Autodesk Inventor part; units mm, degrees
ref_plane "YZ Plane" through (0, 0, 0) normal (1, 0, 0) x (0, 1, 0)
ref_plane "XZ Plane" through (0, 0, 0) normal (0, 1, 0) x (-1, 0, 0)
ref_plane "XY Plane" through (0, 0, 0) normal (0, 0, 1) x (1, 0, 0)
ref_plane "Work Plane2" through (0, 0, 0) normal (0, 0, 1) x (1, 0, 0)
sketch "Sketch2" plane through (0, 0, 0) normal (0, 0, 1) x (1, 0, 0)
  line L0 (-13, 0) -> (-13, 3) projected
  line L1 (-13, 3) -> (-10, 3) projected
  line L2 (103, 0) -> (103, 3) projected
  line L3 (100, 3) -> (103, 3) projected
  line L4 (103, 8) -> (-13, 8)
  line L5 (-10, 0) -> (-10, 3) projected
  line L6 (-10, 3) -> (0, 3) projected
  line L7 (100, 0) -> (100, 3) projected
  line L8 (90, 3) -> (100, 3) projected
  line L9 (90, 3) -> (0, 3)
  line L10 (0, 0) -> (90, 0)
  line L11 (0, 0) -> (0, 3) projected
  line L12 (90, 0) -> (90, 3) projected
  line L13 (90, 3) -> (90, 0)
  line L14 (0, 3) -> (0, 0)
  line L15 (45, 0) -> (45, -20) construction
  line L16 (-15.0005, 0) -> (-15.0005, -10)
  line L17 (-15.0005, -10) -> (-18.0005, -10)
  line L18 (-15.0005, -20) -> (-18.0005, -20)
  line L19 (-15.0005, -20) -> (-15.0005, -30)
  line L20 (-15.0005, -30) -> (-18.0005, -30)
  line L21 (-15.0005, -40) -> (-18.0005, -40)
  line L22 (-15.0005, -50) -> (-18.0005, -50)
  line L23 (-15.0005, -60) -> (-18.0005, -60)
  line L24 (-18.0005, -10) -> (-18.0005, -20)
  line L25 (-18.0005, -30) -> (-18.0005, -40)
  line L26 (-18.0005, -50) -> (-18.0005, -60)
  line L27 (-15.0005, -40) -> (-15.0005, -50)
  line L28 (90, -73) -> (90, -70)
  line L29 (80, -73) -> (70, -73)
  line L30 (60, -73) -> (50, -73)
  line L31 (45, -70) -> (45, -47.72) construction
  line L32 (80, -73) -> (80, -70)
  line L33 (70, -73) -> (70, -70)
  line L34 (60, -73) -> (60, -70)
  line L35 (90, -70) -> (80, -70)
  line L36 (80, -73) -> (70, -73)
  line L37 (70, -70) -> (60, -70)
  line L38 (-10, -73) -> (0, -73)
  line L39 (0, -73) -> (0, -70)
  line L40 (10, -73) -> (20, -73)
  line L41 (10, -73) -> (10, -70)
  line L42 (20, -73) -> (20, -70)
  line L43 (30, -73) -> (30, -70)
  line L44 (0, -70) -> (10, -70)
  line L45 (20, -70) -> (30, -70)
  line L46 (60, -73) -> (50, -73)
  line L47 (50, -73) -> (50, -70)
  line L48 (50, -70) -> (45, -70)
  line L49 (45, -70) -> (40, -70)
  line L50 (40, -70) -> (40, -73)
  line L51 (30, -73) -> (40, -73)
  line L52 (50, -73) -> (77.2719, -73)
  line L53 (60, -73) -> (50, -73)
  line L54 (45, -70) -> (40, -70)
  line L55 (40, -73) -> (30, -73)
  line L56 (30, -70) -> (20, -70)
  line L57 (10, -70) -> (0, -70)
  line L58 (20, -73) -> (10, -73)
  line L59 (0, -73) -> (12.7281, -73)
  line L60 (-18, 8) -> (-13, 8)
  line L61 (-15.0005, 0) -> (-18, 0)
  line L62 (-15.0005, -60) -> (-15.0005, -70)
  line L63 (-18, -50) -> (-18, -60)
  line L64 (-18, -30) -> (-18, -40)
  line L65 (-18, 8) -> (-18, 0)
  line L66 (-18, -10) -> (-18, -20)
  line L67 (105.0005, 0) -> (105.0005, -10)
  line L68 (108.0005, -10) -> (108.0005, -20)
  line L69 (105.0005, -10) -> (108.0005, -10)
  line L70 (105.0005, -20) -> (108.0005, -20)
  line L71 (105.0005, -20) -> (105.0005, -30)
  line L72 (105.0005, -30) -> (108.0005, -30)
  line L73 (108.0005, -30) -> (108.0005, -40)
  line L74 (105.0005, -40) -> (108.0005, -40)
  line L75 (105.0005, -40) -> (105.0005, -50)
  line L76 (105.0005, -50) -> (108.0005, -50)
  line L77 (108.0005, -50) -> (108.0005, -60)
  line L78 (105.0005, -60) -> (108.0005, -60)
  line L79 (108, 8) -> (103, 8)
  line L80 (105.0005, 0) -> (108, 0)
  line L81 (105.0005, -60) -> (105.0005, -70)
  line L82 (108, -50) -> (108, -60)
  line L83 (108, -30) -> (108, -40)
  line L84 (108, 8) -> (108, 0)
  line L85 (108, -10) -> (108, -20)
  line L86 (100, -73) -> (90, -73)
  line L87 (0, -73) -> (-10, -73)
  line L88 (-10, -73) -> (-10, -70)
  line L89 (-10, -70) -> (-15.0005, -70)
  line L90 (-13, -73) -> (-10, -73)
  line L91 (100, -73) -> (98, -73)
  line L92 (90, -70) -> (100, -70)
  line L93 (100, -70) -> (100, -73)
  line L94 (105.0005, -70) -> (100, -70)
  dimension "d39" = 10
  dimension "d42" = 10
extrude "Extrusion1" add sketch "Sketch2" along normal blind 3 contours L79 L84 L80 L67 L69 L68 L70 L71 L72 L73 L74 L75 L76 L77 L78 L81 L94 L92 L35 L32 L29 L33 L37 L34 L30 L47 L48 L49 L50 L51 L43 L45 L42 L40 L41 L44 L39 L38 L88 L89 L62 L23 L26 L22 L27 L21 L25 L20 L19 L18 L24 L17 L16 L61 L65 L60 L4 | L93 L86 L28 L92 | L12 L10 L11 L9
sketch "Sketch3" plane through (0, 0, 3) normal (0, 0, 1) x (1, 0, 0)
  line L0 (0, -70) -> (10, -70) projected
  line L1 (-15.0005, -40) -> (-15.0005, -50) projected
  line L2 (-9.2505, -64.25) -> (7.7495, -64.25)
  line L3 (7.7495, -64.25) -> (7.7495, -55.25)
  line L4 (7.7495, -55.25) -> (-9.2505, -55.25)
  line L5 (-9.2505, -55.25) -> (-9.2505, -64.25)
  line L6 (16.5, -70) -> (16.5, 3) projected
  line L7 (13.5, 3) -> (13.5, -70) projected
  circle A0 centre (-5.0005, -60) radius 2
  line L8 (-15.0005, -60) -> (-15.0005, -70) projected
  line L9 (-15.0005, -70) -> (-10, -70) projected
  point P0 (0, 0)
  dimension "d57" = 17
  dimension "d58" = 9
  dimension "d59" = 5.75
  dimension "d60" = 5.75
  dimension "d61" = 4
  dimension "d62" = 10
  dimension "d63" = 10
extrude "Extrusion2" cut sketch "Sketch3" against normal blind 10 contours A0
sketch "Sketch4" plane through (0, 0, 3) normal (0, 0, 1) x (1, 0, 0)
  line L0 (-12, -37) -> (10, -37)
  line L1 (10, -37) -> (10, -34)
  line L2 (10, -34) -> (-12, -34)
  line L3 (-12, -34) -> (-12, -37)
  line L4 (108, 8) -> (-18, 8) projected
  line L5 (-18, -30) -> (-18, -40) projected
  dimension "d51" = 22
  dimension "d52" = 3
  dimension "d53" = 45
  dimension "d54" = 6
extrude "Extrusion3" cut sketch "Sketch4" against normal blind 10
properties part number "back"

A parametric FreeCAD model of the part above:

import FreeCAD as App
import Part
import Sketcher
from FreeCAD import Vector
Q = App.Units.Quantity

doc = App.newDocument("Part")
body = doc.addObject("PartDesign::Body", "Body")

sketch1 = body.newObject("Sketcher::SketchObject", "Sketch")
sketch1.AttachmentSupport = (doc.getObject("XY_Plane"), [""])
sketch1.MapMode = "FlatFace"
sketch1.addGeometry(Part.LineSegment(Vector(108, 8, 0), Vector(-18, 8, 0)), False)
sketch1.addGeometry(Part.LineSegment(Vector(-18, 8, 0), Vector(-18, 0, 0)), False)
sketch1.addGeometry(Part.LineSegment(Vector(-18, 0, 0), Vector(-15, 0, 0)), False)
sketch1.addGeometry(Part.LineSegment(Vector(-15, 0, 0), Vector(-15, -10, 0)), False)
sketch1.addGeometry(Part.LineSegment(Vector(-15, -10, 0), Vector(-18, -10, 0)), False)
sketch1.addGeometry(Part.LineSegment(Vector(-18, -10, 0), Vector(-18, -20, 0)), False)
sketch1.addGeometry(Part.LineSegment(Vector(-18, -20, 0), Vector(-15, -20, 0)), False)
sketch1.addGeometry(Part.LineSegment(Vector(-15, -20, 0), Vector(-15, -30, 0)), False)
sketch1.addGeometry(Part.LineSegment(Vector(-15, -30, 0), Vector(-18, -30, 0)), False)
sketch1.addGeometry(Part.LineSegment(Vector(-18, -30, 0), Vector(-18, -40, 0)), False)
sketch1.addGeometry(Part.LineSegment(Vector(-18, -40, 0), Vector(-15, -40, 0)), False)
sketch1.addGeometry(Part.LineSegment(Vector(-15, -40, 0), Vector(-15, -50, 0)), False)
sketch1.addGeometry(Part.LineSegment(Vector(-15, -50, 0), Vector(-18, -50, 0)), False)
sketch1.addGeometry(Part.LineSegment(Vector(-18, -50, 0), Vector(-18, -60, 0)), False)
sketch1.addGeometry(Part.LineSegment(Vector(-18, -60, 0), Vector(-15, -60, 0)), False)
sketch1.addGeometry(Part.LineSegment(Vector(-15, -60, 0), Vector(-15, -70, 0)), False)
sketch1.addGeometry(Part.LineSegment(Vector(-15, -70, 0), Vector(-10, -70, 0)), False)
sketch1.addGeometry(Part.LineSegment(Vector(-10, -70, 0), Vector(-10, -73, 0)), False)
sketch1.addGeometry(Part.LineSegment(Vector(-10, -73, 0), Vector(0, -73, 0)), False)
sketch1.addGeometry(Part.LineSegment(Vector(0, -73, 0), Vector(0, -70, 0)), False)
sketch1.addGeometry(Part.LineSegment(Vector(0, -70, 0), Vector(10, -70, 0)), False)
sketch1.addGeometry(Part.LineSegment(Vector(10, -70, 0), Vector(10, -73, 0)), False)
sketch1.addGeometry(Part.LineSegment(Vector(10, -73, 0), Vector(20, -73, 0)), False)
sketch1.addGeometry(Part.LineSegment(Vector(20, -73, 0), Vector(20, -70, 0)), False)
sketch1.addGeometry(Part.LineSegment(Vector(20, -70, 0), Vector(30, -70, 0)), False)
sketch1.addGeometry(Part.LineSegment(Vector(30, -70, 0), Vector(30, -73, 0)), False)
sketch1.addGeometry(Part.LineSegment(Vector(30, -73, 0), Vector(40, -73, 0)), False)
sketch1.addGeometry(Part.LineSegment(Vector(40, -73, 0), Vector(40, -70, 0)), False)
sketch1.addGeometry(Part.LineSegment(Vector(40, -70, 0), Vector(50, -70, 0)), False)
sketch1.addGeometry(Part.LineSegment(Vector(50, -70, 0), Vector(50, -73, 0)), False)
sketch1.addGeometry(Part.LineSegment(Vector(50, -73, 0), Vector(60, -73, 0)), False)
sketch1.addGeometry(Part.LineSegment(Vector(60, -73, 0), Vector(60, -70, 0)), False)
sketch1.addGeometry(Part.LineSegment(Vector(60, -70, 0), Vector(70, -70, 0)), False)
sketch1.addGeometry(Part.LineSegment(Vector(70, -70, 0), Vector(70, -73, 0)), False)
sketch1.addGeometry(Part.LineSegment(Vector(70, -73, 0), Vector(80, -73, 0)), False)
sketch1.addGeometry(Part.LineSegment(Vector(80, -73, 0), Vector(80, -70, 0)), False)
sketch1.addGeometry(Part.LineSegment(Vector(80, -70, 0), Vector(90, -70, 0)), False)
sketch1.addGeometry(Part.LineSegment(Vector(90, -70, 0), Vector(90, -73, 0)), False)
sketch1.addGeometry(Part.LineSegment(Vector(90, -73, 0), Vector(100, -73, 0)), False)
sketch1.addGeometry(Part.LineSegment(Vector(100, -73, 0), Vector(100, -70, 0)), False)
sketch1.addGeometry(Part.LineSegment(Vector(100, -70, 0), Vector(105, -70, 0)), False)
sketch1.addGeometry(Part.LineSegment(Vector(105, -70, 0), Vector(105, -60, 0)), False)
sketch1.addGeometry(Part.LineSegment(Vector(105, -60, 0), Vector(108, -60, 0)), False)
sketch1.addGeometry(Part.LineSegment(Vector(108, -60, 0), Vector(108, -50, 0)), False)
sketch1.addGeometry(Part.LineSegment(Vector(108, -50, 0), Vector(105, -50, 0)), False)
sketch1.addGeometry(Part.LineSegment(Vector(105, -50, 0), Vector(105, -40, 0)), False)
sketch1.addGeometry(Part.LineSegment(Vector(105, -40, 0), Vector(108, -40, 0)), False)
sketch1.addGeometry(Part.LineSegment(Vector(108, -40, 0), Vector(108, -30, 0)), False)
sketch1.addGeometry(Part.LineSegment(Vector(108, -30, 0), Vector(105, -30, 0)), False)
sketch1.addGeometry(Part.LineSegment(Vector(105, -30, 0), Vector(105, -20, 0)), False)
sketch1.addGeometry(Part.LineSegment(Vector(105, -20, 0), Vector(108, -20, 0)), False)
sketch1.addGeometry(Part.LineSegment(Vector(108, -20, 0), Vector(108, -10, 0)), False)
sketch1.addGeometry(Part.LineSegment(Vector(108, -10, 0), Vector(105, -10, 0)), False)
sketch1.addGeometry(Part.LineSegment(Vector(105, -10, 0), Vector(105, 0, 0)), False)
sketch1.addGeometry(Part.LineSegment(Vector(105, 0, 0), Vector(108, 0, 0)), False)
sketch1.addGeometry(Part.LineSegment(Vector(108, 0, 0), Vector(108, 8, 0)), False)
sketch1.addConstraint(Sketcher.Constraint("Coincident", 0, 2, 1, 1))
sketch1.addConstraint(Sketcher.Constraint("Coincident", 1, 2, 2, 1))
sketch1.addConstraint(Sketcher.Constraint("Coincident", 2, 2, 3, 1))
sketch1.addConstraint(Sketcher.Constraint("Coincident", 3, 2, 4, 1))
sketch1.addConstraint(Sketcher.Constraint("Coincident", 4, 2, 5, 1))
sketch1.addConstraint(Sketcher.Constraint("Coincident", 5, 2, 6, 1))
sketch1.addConstraint(Sketcher.Constraint("Coincident", 6, 2, 7, 1))
sketch1.addConstraint(Sketcher.Constraint("Coincident", 7, 2, 8, 1))
sketch1.addConstraint(Sketcher.Constraint("Coincident", 8, 2, 9, 1))
sketch1.addConstraint(Sketcher.Constraint("Coincident", 9, 2, 10, 1))
sketch1.addConstraint(Sketcher.Constraint("Coincident", 10, 2, 11, 1))
sketch1.addConstraint(Sketcher.Constraint("Coincident", 11, 2, 12, 1))
sketch1.addConstraint(Sketcher.Constraint("Coincident", 12, 2, 13, 1))
sketch1.addConstraint(Sketcher.Constraint("Coincident", 13, 2, 14, 1))
sketch1.addConstraint(Sketcher.Constraint("Coincident", 14, 2, 15, 1))
sketch1.addConstraint(Sketcher.Constraint("Coincident", 15, 2, 16, 1))
sketch1.addConstraint(Sketcher.Constraint("Coincident", 16, 2, 17, 1))
sketch1.addConstraint(Sketcher.Constraint("Coincident", 17, 2, 18, 1))
sketch1.addConstraint(Sketcher.Constraint("Coincident", 18, 2, 19, 1))
sketch1.addConstraint(Sketcher.Constraint("Coincident", 19, 2, 20, 1))
sketch1.addConstraint(Sketcher.Constraint("Coincident", 20, 2, 21, 1))
sketch1.addConstraint(Sketcher.Constraint("Coincident", 21, 2, 22, 1))
sketch1.addConstraint(Sketcher.Constraint("Coincident", 22, 2, 23, 1))
sketch1.addConstraint(Sketcher.Constraint("Coincident", 23, 2, 24, 1))
sketch1.addConstraint(Sketcher.Constraint("Coincident", 24, 2, 25, 1))
sketch1.addConstraint(Sketcher.Constraint("Coincident", 25, 2, 26, 1))
sketch1.addConstraint(Sketcher.Constraint("Coincident", 26, 2, 27, 1))
sketch1.addConstraint(Sketcher.Constraint("Coincident", 27, 2, 28, 1))
sketch1.addConstraint(Sketcher.Constraint("Coincident", 28, 2, 29, 1))
sketch1.addConstraint(Sketcher.Constraint("Coincident", 29, 2, 30, 1))
sketch1.addConstraint(Sketcher.Constraint("Coincident", 30, 2, 31, 1))
sketch1.addConstraint(Sketcher.Constraint("Coincident", 31, 2, 32, 1))
sketch1.addConstraint(Sketcher.Constraint("Coincident", 32, 2, 33, 1))
sketch1.addConstraint(Sketcher.Constraint("Coincident", 33, 2, 34, 1))
sketch1.addConstraint(Sketcher.Constraint("Coincident", 34, 2, 35, 1))
sketch1.addConstraint(Sketcher.Constraint("Coincident", 35, 2, 36, 1))
sketch1.addConstraint(Sketcher.Constraint("Coincident", 36, 2, 37, 1))
sketch1.addConstraint(Sketcher.Constraint("Coincident", 37, 2, 38, 1))
sketch1.addConstraint(Sketcher.Constraint("Coincident", 38, 2, 39, 1))
sketch1.addConstraint(Sketcher.Constraint("Coincident", 39, 2, 40, 1))
sketch1.addConstraint(Sketcher.Constraint("Coincident", 40, 2, 41, 1))
sketch1.addConstraint(Sketcher.Constraint("Coincident", 41, 2, 42, 1))
sketch1.addConstraint(Sketcher.Constraint("Coincident", 42, 2, 43, 1))
sketch1.addConstraint(Sketcher.Constraint("Coincident", 43, 2, 44, 1))
sketch1.addConstraint(Sketcher.Constraint("Coincident", 44, 2, 45, 1))
sketch1.addConstraint(Sketcher.Constraint("Coincident", 45, 2, 46, 1))
sketch1.addConstraint(Sketcher.Constraint("Coincident", 46, 2, 47, 1))
sketch1.addConstraint(Sketcher.Constraint("Coincident", 47, 2, 48, 1))
sketch1.addConstraint(Sketcher.Constraint("Coincident", 48, 2, 49, 1))
sketch1.addConstraint(Sketcher.Constraint("Coincident", 49, 2, 50, 1))
sketch1.addConstraint(Sketcher.Constraint("Coincident", 50, 2, 51, 1))
sketch1.addConstraint(Sketcher.Constraint("Coincident", 51, 2, 52, 1))
sketch1.addConstraint(Sketcher.Constraint("Coincident", 52, 2, 53, 1))
sketch1.addConstraint(Sketcher.Constraint("Coincident", 53, 2, 54, 1))
sketch1.addConstraint(Sketcher.Constraint("Coincident", 54, 2, 55, 1))
sketch1.addConstraint(Sketcher.Constraint("Coincident", 55, 2, 0, 1))
sketch1.addConstraint(Sketcher.Constraint("Horizontal", 0))
sketch1.addConstraint(Sketcher.Constraint("Vertical", 1))
sketch1.addConstraint(Sketcher.Constraint("Horizontal", 2))
sketch1.addConstraint(Sketcher.Constraint("Vertical", 3))
sketch1.addConstraint(Sketcher.Constraint("Horizontal", 4))
sketch1.addConstraint(Sketcher.Constraint("Vertical", 5))
sketch1.addConstraint(Sketcher.Constraint("Horizontal", 6))
sketch1.addConstraint(Sketcher.Constraint("Vertical", 7))
sketch1.addConstraint(Sketcher.Constraint("Horizontal", 8))
sketch1.addConstraint(Sketcher.Constraint("Vertical", 9))
sketch1.addConstraint(Sketcher.Constraint("Horizontal", 10))
sketch1.addConstraint(Sketcher.Constraint("Vertical", 11))
sketch1.addConstraint(Sketcher.Constraint("Horizontal", 12))
sketch1.addConstraint(Sketcher.Constraint("Vertical", 13))
sketch1.addConstraint(Sketcher.Constraint("Horizontal", 14))
sketch1.addConstraint(Sketcher.Constraint("Vertical", 15))
sketch1.addConstraint(Sketcher.Constraint("Horizontal", 16))
sketch1.addConstraint(Sketcher.Constraint("Vertical", 17))
sketch1.addConstraint(Sketcher.Constraint("Horizontal", 18))
sketch1.addConstraint(Sketcher.Constraint("Vertical", 19))
sketch1.addConstraint(Sketcher.Constraint("Horizontal", 20))
sketch1.addConstraint(Sketcher.Constraint("Vertical", 21))
sketch1.addConstraint(Sketcher.Constraint("Horizontal", 22))
sketch1.addConstraint(Sketcher.Constraint("Vertical", 23))
sketch1.addConstraint(Sketcher.Constraint("Horizontal", 24))
sketch1.addConstraint(Sketcher.Constraint("Vertical", 25))
sketch1.addConstraint(Sketcher.Constraint("Horizontal", 26))
sketch1.addConstraint(Sketcher.Constraint("Vertical", 27))
sketch1.addConstraint(Sketcher.Constraint("Horizontal", 28))
sketch1.addConstraint(Sketcher.Constraint("Vertical", 29))
sketch1.addConstraint(Sketcher.Constraint("Horizontal", 30))
sketch1.addConstraint(Sketcher.Constraint("Vertical", 31))
sketch1.addConstraint(Sketcher.Constraint("Horizontal", 32))
sketch1.addConstraint(Sketcher.Constraint("Vertical", 33))
sketch1.addConstraint(Sketcher.Constraint("Horizontal", 34))
sketch1.addConstraint(Sketcher.Constraint("Vertical", 35))
sketch1.addConstraint(Sketcher.Constraint("Horizontal", 36))
sketch1.addConstraint(Sketcher.Constraint("Vertical", 37))
sketch1.addConstraint(Sketcher.Constraint("Horizontal", 38))
sketch1.addConstraint(Sketcher.Constraint("Vertical", 39))
sketch1.addConstraint(Sketcher.Constraint("Horizontal", 40))
sketch1.addConstraint(Sketcher.Constraint("Vertical", 41))
sketch1.addConstraint(Sketcher.Constraint("Horizontal", 42))
sketch1.addConstraint(Sketcher.Constraint("Vertical", 43))
sketch1.addConstraint(Sketcher.Constraint("Horizontal", 44))
sketch1.addConstraint(Sketcher.Constraint("Vertical", 45))
sketch1.addConstraint(Sketcher.Constraint("Horizontal", 46))
sketch1.addConstraint(Sketcher.Constraint("Vertical", 47))
sketch1.addConstraint(Sketcher.Constraint("Horizontal", 48))
sketch1.addConstraint(Sketcher.Constraint("Vertical", 49))
sketch1.addConstraint(Sketcher.Constraint("Horizontal", 50))
sketch1.addConstraint(Sketcher.Constraint("Vertical", 51))
sketch1.addConstraint(Sketcher.Constraint("Horizontal", 52))
sketch1.addConstraint(Sketcher.Constraint("Vertical", 53))
sketch1.addConstraint(Sketcher.Constraint("Horizontal", 54))
sketch1.addConstraint(Sketcher.Constraint("Vertical", 55))
sketch1.addConstraint(Sketcher.Constraint("Symmetric", 16, 2, 20, 2, -2))
sketch1.addConstraint(Sketcher.Constraint("PointOnObject", 1, 2, -1))
sketch1.addConstraint(Sketcher.Constraint("PointOnObject", 18, 2, -2))
sketch1.addConstraint(Sketcher.Constraint("PointOnObject", 53, 2, -1))
sketch1.addConstraint(Sketcher.Constraint("Horizontal", 18, 2, 21, 2))
sketch1.addConstraint(Sketcher.Constraint("Horizontal", 20, 2, 23, 2))
sketch1.addConstraint(Sketcher.Constraint("Horizontal", 22, 2, 25, 2))
sketch1.addConstraint(Sketcher.Constraint("Horizontal", 24, 2, 27, 2))
sketch1.addConstraint(Sketcher.Constraint("Horizontal", 26, 2, 29, 2))
sketch1.addConstraint(Sketcher.Constraint("Horizontal", 28, 2, 31, 2))
sketch1.addConstraint(Sketcher.Constraint("Horizontal", 30, 2, 33, 2))
sketch1.addConstraint(Sketcher.Constraint("Horizontal", 32, 2, 35, 2))
sketch1.addConstraint(Sketcher.Constraint("Horizontal", 34, 2, 37, 2))
sketch1.addConstraint(Sketcher.Constraint("Horizontal", 36, 2, 39, 2))
sketch1.addConstraint(Sketcher.Constraint("Horizontal", 14, 2, 41, 2))
sketch1.addConstraint(Sketcher.Constraint("Horizontal", 12, 2, 43, 2))
sketch1.addConstraint(Sketcher.Constraint("Horizontal", 10, 2, 45, 2))
sketch1.addConstraint(Sketcher.Constraint("Horizontal", 8, 2, 47, 2))
sketch1.addConstraint(Sketcher.Constraint("Horizontal", 6, 2, 49, 2))
sketch1.addConstraint(Sketcher.Constraint("Horizontal", 4, 2, 51, 2))
sketch1.addConstraint(Sketcher.Constraint("Vertical", 3, 2, 6, 2))
sketch1.addConstraint(Sketcher.Constraint("Vertical", 5, 2, 8, 2))
sketch1.addConstraint(Sketcher.Constraint("Vertical", 7, 2, 10, 2))
sketch1.addConstraint(Sketcher.Constraint("Vertical", 9, 2, 12, 2))
sketch1.addConstraint(Sketcher.Constraint("Vertical", 11, 2, 14, 2))
sketch1.addConstraint(Sketcher.Constraint("Vertical", 41, 2, 44, 2))
sketch1.addConstraint(Sketcher.Constraint("Vertical", 43, 2, 46, 2))
sketch1.addConstraint(Sketcher.Constraint("Vertical", 45, 2, 48, 2))
sketch1.addConstraint(Sketcher.Constraint("Vertical", 47, 2, 50, 2))
sketch1.addConstraint(Sketcher.Constraint("Vertical", 49, 2, 52, 2))
sketch1.addConstraint(Sketcher.Constraint("Equal", 20, 22))
sketch1.addConstraint(Sketcher.Constraint("Equal", 22, 24))
sketch1.addConstraint(Sketcher.Constraint("Equal", 24, 26))
sketch1.addConstraint(Sketcher.Constraint("Equal", 26, 28))
sketch1.addConstraint(Sketcher.Constraint("Equal", 28, 30))
sketch1.addConstraint(Sketcher.Constraint("Equal", 30, 32))
sketch1.addConstraint(Sketcher.Constraint("Equal", 32, 34))
sketch1.addConstraint(Sketcher.Constraint("Equal", 34, 36))
sketch1.addConstraint(Sketcher.Constraint("Equal", 36, 38))
sketch1.addConstraint(Sketcher.Constraint("Equal", 16, 40))
sketch1.addConstraint(Sketcher.Constraint("Equal", 14, 42))
sketch1.addConstraint(Sketcher.Constraint("Equal", 2, 54))
sketch1.addConstraint(Sketcher.Constraint("Equal", 38, 3))
sketch1.addConstraint(Sketcher.Constraint("Equal", 3, 5))
sketch1.addConstraint(Sketcher.Constraint("Equal", 5, 7))
sketch1.addConstraint(Sketcher.Constraint("Equal", 7, 9))
sketch1.addConstraint(Sketcher.Constraint("Equal", 9, 11))
sketch1.addConstraint(Sketcher.Constraint("Equal", 11, 13))
sketch1.addConstraint(Sketcher.Constraint("Equal", 13, 15))
sketch1.addConstraint(Sketcher.Constraint("Equal", 52, 17))
sketch1.addConstraint(Sketcher.Constraint("DistanceX", 18, 1, 18, 2, Q("10 mm")))
sketch1.addConstraint(Sketcher.Constraint("DistanceX", 0, 2, 0, 1, Q("126 mm")))
sketch1.addConstraint(Sketcher.Constraint("DistanceX", 4, 2, 4, 1, Q("3 mm")))
sketch1.addConstraint(Sketcher.Constraint("DistanceY", 1, 2, 1, 1, Q("8 mm")))
sketch1.addConstraint(Sketcher.Constraint("DistanceX", 2, 1, 2, 2, Q("2.9995 mm")))
pad1 = body.newObject("PartDesign::Pad", "Pad")
pad1.Profile = sketch1
pad1.Length = 3

sketch2 = body.newObject("Sketcher::SketchObject", "Sketch001")
sketch2.AttachmentSupport = (doc.getObject("XY_Plane"), [""])
sketch2.MapMode = "FlatFace"
sketch2.AttachmentOffset = App.Placement(Vector(0, 0, 3), App.Rotation())
sketch2.addGeometry(Part.Circle(Vector(-5, -60, 0), Vector(0, 0, 1), 2), False)
sketch2.addConstraint(Sketcher.Constraint("Diameter", 0, Q("4 mm")))
sketch2.addConstraint(Sketcher.Constraint("DistanceY", 0, 3, -1, 1, Q("60 mm")))
sketch2.addConstraint(Sketcher.Constraint("DistanceX", 0, 3, -1, 1, Q("5.0005 mm")))
pocket1 = body.newObject("PartDesign::Pocket", "Pocket")
pocket1.Profile = sketch2
pocket1.Length = 10

sketch3 = body.newObject("Sketcher::SketchObject", "Sketch002")
sketch3.AttachmentSupport = (doc.getObject("XY_Plane"), [""])
sketch3.MapMode = "FlatFace"
sketch3.AttachmentOffset = App.Placement(Vector(0, 0, 3), App.Rotation())
sketch3.addGeometry(Part.LineSegment(Vector(-12, -34, 0), Vector(-12, -37, 0)), False)
sketch3.addGeometry(Part.LineSegment(Vector(-12, -37, 0), Vector(10, -37, 0)), False)
sketch3.addGeometry(Part.LineSegment(Vector(10, -37, 0), Vector(10, -34, 0)), False)
sketch3.addGeometry(Part.LineSegment(Vector(10, -34, 0), Vector(-12, -34, 0)), False)
sketch3.addConstraint(Sketcher.Constraint("Coincident", 0, 2, 1, 1))
sketch3.addConstraint(Sketcher.Constraint("Coincident", 1, 2, 2, 1))
sketch3.addConstraint(Sketcher.Constraint("Coincident", 2, 2, 3, 1))
sketch3.addConstraint(Sketcher.Constraint("Coincident", 3, 2, 0, 1))
sketch3.addConstraint(Sketcher.Constraint("Vertical", 0))
sketch3.addConstraint(Sketcher.Constraint("Horizontal", 1))
sketch3.addConstraint(Sketcher.Constraint("Vertical", 2))
sketch3.addConstraint(Sketcher.Constraint("Horizontal", 3))
sketch3.addConstraint(Sketcher.Constraint("DistanceX", 1, 1, 1, 2, Q("22 mm")))
sketch3.addConstraint(Sketcher.Constraint("DistanceY", 0, 2, 0, 1, Q("3 mm")))
sketch3.addConstraint(Sketcher.Constraint("DistanceX", 0, 2, -1, 1, Q("12 mm")))
sketch3.addConstraint(Sketcher.Constraint("DistanceY", 0, 2, -1, 1, Q("37 mm")))
pocket2 = body.newObject("PartDesign::Pocket", "Pocket001")
pocket2.Profile = sketch3
pocket2.Length = 10

doc.recompute()
